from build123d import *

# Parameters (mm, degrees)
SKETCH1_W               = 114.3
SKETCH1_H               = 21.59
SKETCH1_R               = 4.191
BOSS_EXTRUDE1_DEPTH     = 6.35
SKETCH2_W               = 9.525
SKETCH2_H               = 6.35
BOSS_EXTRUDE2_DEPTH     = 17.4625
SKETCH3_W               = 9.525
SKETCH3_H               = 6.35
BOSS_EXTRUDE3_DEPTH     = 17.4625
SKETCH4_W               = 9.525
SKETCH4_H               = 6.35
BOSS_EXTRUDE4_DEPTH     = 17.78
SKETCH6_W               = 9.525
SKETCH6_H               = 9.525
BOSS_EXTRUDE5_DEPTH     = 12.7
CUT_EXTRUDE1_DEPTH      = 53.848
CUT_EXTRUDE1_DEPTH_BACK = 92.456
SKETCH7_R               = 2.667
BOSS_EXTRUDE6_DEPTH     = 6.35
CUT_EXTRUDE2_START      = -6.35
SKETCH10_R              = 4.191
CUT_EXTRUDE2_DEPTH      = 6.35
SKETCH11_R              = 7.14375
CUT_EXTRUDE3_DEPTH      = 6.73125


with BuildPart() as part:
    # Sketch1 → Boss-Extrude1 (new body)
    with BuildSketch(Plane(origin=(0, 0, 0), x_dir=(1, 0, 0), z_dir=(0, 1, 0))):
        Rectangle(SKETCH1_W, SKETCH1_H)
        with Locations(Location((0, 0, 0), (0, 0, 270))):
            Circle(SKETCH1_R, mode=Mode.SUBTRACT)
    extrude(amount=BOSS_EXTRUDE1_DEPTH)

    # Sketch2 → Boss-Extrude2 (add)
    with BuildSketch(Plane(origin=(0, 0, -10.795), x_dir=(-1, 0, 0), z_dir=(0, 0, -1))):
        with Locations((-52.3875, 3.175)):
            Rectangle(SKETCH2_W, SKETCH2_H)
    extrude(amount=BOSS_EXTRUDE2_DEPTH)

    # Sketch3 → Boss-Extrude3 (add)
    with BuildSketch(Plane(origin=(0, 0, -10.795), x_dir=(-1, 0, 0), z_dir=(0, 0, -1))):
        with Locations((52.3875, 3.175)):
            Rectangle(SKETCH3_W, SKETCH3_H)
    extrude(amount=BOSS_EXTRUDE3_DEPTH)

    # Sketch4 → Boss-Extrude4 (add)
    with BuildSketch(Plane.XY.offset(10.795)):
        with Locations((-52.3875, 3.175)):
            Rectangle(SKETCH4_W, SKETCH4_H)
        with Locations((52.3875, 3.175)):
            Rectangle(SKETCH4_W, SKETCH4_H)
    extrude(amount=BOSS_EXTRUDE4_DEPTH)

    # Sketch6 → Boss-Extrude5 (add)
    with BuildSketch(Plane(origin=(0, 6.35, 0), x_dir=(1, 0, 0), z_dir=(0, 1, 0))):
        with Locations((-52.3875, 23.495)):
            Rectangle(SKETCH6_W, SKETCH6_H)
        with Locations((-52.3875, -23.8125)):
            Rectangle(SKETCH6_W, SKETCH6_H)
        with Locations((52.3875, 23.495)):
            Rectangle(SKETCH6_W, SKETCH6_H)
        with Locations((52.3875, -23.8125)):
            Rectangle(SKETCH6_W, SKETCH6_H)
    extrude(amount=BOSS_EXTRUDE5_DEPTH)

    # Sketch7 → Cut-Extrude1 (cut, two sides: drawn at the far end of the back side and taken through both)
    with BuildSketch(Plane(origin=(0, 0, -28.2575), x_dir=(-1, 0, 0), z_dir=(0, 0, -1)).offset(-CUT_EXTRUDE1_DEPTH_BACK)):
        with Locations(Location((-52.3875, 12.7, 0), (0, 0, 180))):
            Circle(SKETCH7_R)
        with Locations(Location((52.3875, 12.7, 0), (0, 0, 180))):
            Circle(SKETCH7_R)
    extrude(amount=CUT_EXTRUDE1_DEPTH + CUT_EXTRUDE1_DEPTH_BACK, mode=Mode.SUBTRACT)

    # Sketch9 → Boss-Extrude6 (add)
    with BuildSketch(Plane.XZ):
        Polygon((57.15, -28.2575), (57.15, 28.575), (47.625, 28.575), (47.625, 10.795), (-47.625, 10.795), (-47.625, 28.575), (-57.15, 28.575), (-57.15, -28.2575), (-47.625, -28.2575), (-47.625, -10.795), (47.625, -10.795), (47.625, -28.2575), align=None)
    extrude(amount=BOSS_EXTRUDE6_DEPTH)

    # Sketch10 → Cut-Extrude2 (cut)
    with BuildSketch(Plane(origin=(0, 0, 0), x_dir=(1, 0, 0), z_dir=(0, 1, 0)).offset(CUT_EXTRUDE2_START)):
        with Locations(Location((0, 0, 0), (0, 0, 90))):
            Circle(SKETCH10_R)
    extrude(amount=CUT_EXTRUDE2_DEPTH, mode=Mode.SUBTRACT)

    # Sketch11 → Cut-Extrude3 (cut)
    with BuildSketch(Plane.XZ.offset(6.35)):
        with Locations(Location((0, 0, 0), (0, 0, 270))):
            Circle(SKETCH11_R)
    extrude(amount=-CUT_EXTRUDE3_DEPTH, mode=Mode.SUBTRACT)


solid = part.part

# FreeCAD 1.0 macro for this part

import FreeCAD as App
import Part
import Sketcher
Q = App.Units.Quantity

doc = App.newDocument("Part")
body = doc.addObject("PartDesign::Body", "Body")

# Sketch on XZ plane
sketch1 = body.newObject("Sketcher::SketchObject", "Sketch")
sketch1.AttachmentSupport = (doc.getObject("XZ_Plane"), [""])
sketch1.MapMode = "FlatFace"
sketch1.addGeometry([
    Part.LineSegment(App.Vector(-57.1, -10.8, 0), App.Vector(-57.1, 10.8, 0)),  # 0
    Part.LineSegment(App.Vector(-57.1, 10.8, 0), App.Vector(57.1, 10.8, 0)),  # 1
    Part.LineSegment(App.Vector(57.1, 10.8, 0), App.Vector(57.1, -10.8, 0)),  # 2
    Part.LineSegment(App.Vector(57.1, -10.8, 0), App.Vector(-57.1, -10.8, 0)),  # 3
    Part.Circle(App.Vector(0, 0, 0), App.Vector(0, 0, 1), 4.2),  # 4
], False)
sketch1.addConstraint([
    Sketcher.Constraint("Coincident", 0, 2, 1, 1),
    Sketcher.Constraint("Coincident", 1, 2, 2, 1),
    Sketcher.Constraint("Coincident", 2, 2, 3, 1),
    Sketcher.Constraint("Coincident", 3, 2, 0, 1),
    Sketcher.Constraint("Vertical", 0),
    Sketcher.Constraint("Horizontal", 1),
    Sketcher.Constraint("Vertical", 2),
    Sketcher.Constraint("Horizontal", 3),
    Sketcher.Constraint("Coincident", 4, 3, -1, 1),
    Sketcher.Constraint("Symmetric", 0, 2, 2, 2, -1, 1),
    Sketcher.Constraint("Diameter", 4, Q("0.33 in")),
    Sketcher.Constraint("DistanceX", 1, 1, 1, 2, Q("4.5 in")),
    Sketcher.Constraint("DistanceY", 0, 1, 0, 2, Q("0.85 in")),
])
pad1 = body.newObject("PartDesign::Pad", "Pad")
pad1.Profile = sketch1
pad1.Length = Q("0.25 in")
pad1.Reversed = True

# Sketch on XY plane
sketch2 = body.newObject("Sketcher::SketchObject", "Sketch001")
sketch2.AttachmentSupport = (doc.getObject("XY_Plane"), [""])
sketch2.MapMode = "FlatFace"
sketch2.AttachmentOffset = App.Placement(App.Vector(0, 0, -0.425 * 25.4), App.Rotation())
sketch2.addGeometry([
    Part.LineSegment(App.Vector(57, 6, 0), App.Vector(57, 0, 0)),
    Part.LineSegment(App.Vector(57, 0, 0), App.Vector(48, 0, 0)),
    Part.LineSegment(App.Vector(48, 0, 0), App.Vector(48, 6, 0)),
    Part.LineSegment(App.Vector(48, 6, 0), App.Vector(57, 6, 0)),
], False)
sketch2.addConstraint([
    Sketcher.Constraint("Coincident", 0, 2, 1, 1),
    Sketcher.Constraint("Coincident", 1, 2, 2, 1),
    Sketcher.Constraint("Coincident", 2, 2, 3, 1),
    Sketcher.Constraint("Coincident", 3, 2, 0, 1),
    Sketcher.Constraint("Vertical", 0),
    Sketcher.Constraint("Horizontal", 1),
    Sketcher.Constraint("Vertical", 2),
    Sketcher.Constraint("Horizontal", 3),
    Sketcher.Constraint("PointOnObject", 0, 2, -1),
    Sketcher.Constraint("DistanceY", 0, 2, 0, 1, Q("0.25 in")),
    Sketcher.Constraint("DistanceX", 1, 2, 1, 1, Q("0.375 in")),
    Sketcher.Constraint("DistanceX", -1, 1, 0, 2, Q("2.25 in")),
])
pad2 = body.newObject("PartDesign::Pad", "Pad001")
pad2.Profile = sketch2
pad2.Length = Q("0.6875 in")
pad2.Reversed = True

# Sketch on XY plane
sketch3 = body.newObject("Sketcher::SketchObject", "Sketch002")
sketch3.AttachmentSupport = (doc.getObject("XY_Plane"), [""])
sketch3.MapMode = "FlatFace"
sketch3.AttachmentOffset = App.Placement(App.Vector(0, 0, -0.425 * 25.4), App.Rotation())
sketch3.addGeometry([
    Part.LineSegment(App.Vector(-48, 6, 0), App.Vector(-48, 0, 0)),
    Part.LineSegment(App.Vector(-48, 0, 0), App.Vector(-57, 0, 0)),
    Part.LineSegment(App.Vector(-57, 0, 0), App.Vector(-57, 6, 0)),
    Part.LineSegment(App.Vector(-57, 6, 0), App.Vector(-48, 6, 0)),
], False)
sketch3.addConstraint([
    Sketcher.Constraint("Coincident", 0, 2, 1, 1),
    Sketcher.Constraint("Coincident", 1, 2, 2, 1),
    Sketcher.Constraint("Coincident", 2, 2, 3, 1),
    Sketcher.Constraint("Coincident", 3, 2, 0, 1),
    Sketcher.Constraint("Vertical", 0),
    Sketcher.Constraint("Horizontal", 1),
    Sketcher.Constraint("Vertical", 2),
    Sketcher.Constraint("Horizontal", 3),
    Sketcher.Constraint("PointOnObject", 0, 2, -1),
    Sketcher.Constraint("DistanceY", 0, 2, 0, 1, Q("0.25 in")),
    Sketcher.Constraint("DistanceX", 1, 2, 1, 1, Q("0.375 in")),
    Sketcher.Constraint("DistanceX", 1, 2, -1, 1, Q("2.25 in")),
])
pad3 = body.newObject("PartDesign::Pad", "Pad002")
pad3.Profile = sketch3
pad3.Length = Q("0.6875 in")
pad3.Reversed = True

# Sketch on XY plane
sketch4 = body.newObject("Sketcher::SketchObject", "Sketch003")
sketch4.AttachmentSupport = (doc.getObject("XY_Plane"), [""])
sketch4.MapMode = "FlatFace"
sketch4.AttachmentOffset = App.Placement(App.Vector(0, 0, 0.425 * 25.4), App.Rotation())
sketch4.addGeometry([
    Part.LineSegment(App.Vector(-57, 6, 0), App.Vector(-57, 0, 0)),  # 0
    Part.LineSegment(App.Vector(-57, 0, 0), App.Vector(-48, 0, 0)),  # 1
    Part.LineSegment(App.Vector(-48, 0, 0), App.Vector(-48, 6, 0)),  # 2
    Part.LineSegment(App.Vector(-48, 6, 0), App.Vector(-57, 6, 0)),  # 3
    Part.LineSegment(App.Vector(48, 6, 0), App.Vector(48, 0, 0)),  # 4
    Part.LineSegment(App.Vector(48, 0, 0), App.Vector(57, 0, 0)),  # 5
    Part.LineSegment(App.Vector(57, 0, 0), App.Vector(57, 6, 0)),  # 6
    Part.LineSegment(App.Vector(57, 6, 0), App.Vector(48, 6, 0)),  # 7
], False)
sketch4.addConstraint([
    Sketcher.Constraint("Coincident", 0, 2, 1, 1),
    Sketcher.Constraint("Coincident", 1, 2, 2, 1),
    Sketcher.Constraint("Coincident", 2, 2, 3, 1),
    Sketcher.Constraint("Coincident", 3, 2, 0, 1),
    Sketcher.Constraint("Coincident", 4, 2, 5, 1),
    Sketcher.Constraint("Coincident", 5, 2, 6, 1),
    Sketcher.Constraint("Coincident", 6, 2, 7, 1),
    Sketcher.Constraint("Coincident", 7, 2, 4, 1),
    Sketcher.Constraint("Vertical", 0),
    Sketcher.Constraint("Horizontal", 1),
    Sketcher.Constraint("Vertical", 2),
    Sketcher.Constraint("Horizontal", 3),
    Sketcher.Constraint("Vertical", 4),
    Sketcher.Constraint("Horizontal", 5),
    Sketcher.Constraint("Vertical", 6),
    Sketcher.Constraint("Horizontal", 7),
    Sketcher.Constraint("Symmetric", 1, 2, 4, 2, -1, 1),
    Sketcher.Constraint("Symmetric", 0, 2, 5, 2, -2),
    Sketcher.Constraint("Horizontal", 3, 2, 6, 2),
    Sketcher.Constraint("DistanceY", 0, 2, 0, 1, Q("0.25 in")),
    Sketcher.Constraint("DistanceX", 0, 2, 5, 2, Q("4.5 in")),
    Sketcher.Constraint("DistanceX", 1, 1, 1, 2, Q("0.375 in")),
])
pad4 = body.newObject("PartDesign::Pad", "Pad003")
pad4.Profile = sketch4
pad4.Length = Q("0.7 in")

# Sketch on XZ plane
sketch5 = body.newObject("Sketcher::SketchObject", "Sketch004")
sketch5.AttachmentSupport = (doc.getObject("XZ_Plane"), [""])
sketch5.MapMode = "FlatFace"
sketch5.AttachmentOffset = App.Placement(App.Vector(0, 0, -0.25 * 25.4), App.Rotation())
sketch5.addGeometry([
    Part.LineSegment(App.Vector(-57, -28, 0), App.Vector(-57, -19, 0)),  # 0
    Part.LineSegment(App.Vector(-57, -19, 0), App.Vector(-48, -19, 0)),  # 1
    Part.LineSegment(App.Vector(-48, -19, 0), App.Vector(-48, -28, 0)),  # 2
    Part.LineSegment(App.Vector(-48, -28, 0), App.Vector(-57, -28, 0)),  # 3
    Part.LineSegment(App.Vector(-57, 19, 0), App.Vector(-57, 29, 0)),  # 4
    Part.LineSegment(App.Vector(-57, 29, 0), App.Vector(-48, 29, 0)),  # 5
    Part.LineSegment(App.Vector(-48, 29, 0), App.Vector(-48, 19, 0)),  # 6
    Part.LineSegment(App.Vector(-48, 19, 0), App.Vector(-57, 19, 0)),  # 7
    Part.LineSegment(App.Vector(48, -28, 0), App.Vector(48, -19, 0)),  # 8
    Part.LineSegment(App.Vector(48, -19, 0), App.Vector(57, -19, 0)),  # 9
    Part.LineSegment(App.Vector(57, -19, 0), App.Vector(57, -28, 0)),  # 10
    Part.LineSegment(App.Vector(57, -28, 0), App.Vector(48, -28, 0)),  # 11
    Part.LineSegment(App.Vector(48, 19, 0), App.Vector(48, 29, 0)),  # 12
    Part.LineSegment(App.Vector(48, 29, 0), App.Vector(57, 29, 0)),  # 13
    Part.LineSegment(App.Vector(57, 29, 0), App.Vector(57, 19, 0)),  # 14
    Part.LineSegment(App.Vector(57, 19, 0), App.Vector(48, 19, 0)),  # 15
], False)
sketch5.addConstraint([
    Sketcher.Constraint("Coincident", 0, 2, 1, 1),
    Sketcher.Constraint("Coincident", 1, 2, 2, 1),
    Sketcher.Constraint("Coincident", 2, 2, 3, 1),
    Sketcher.Constraint("Coincident", 3, 2, 0, 1),
    Sketcher.Constraint("Coincident", 4, 2, 5, 1),
    Sketcher.Constraint("Coincident", 5, 2, 6, 1),
    Sketcher.Constraint("Coincident", 6, 2, 7, 1),
    Sketcher.Constraint("Coincident", 7, 2, 4, 1),
    Sketcher.Constraint("Coincident", 8, 2, 9, 1),
    Sketcher.Constraint("Coincident", 9, 2, 10, 1),
    Sketcher.Constraint("Coincident", 10, 2, 11, 1),
    Sketcher.Constraint("Coincident", 11, 2, 8, 1),
    Sketcher.Constraint("Coincident", 12, 2, 13, 1),
    Sketcher.Constraint("Coincident", 13, 2, 14, 1),
    Sketcher.Constraint("Coincident", 14, 2, 15, 1),
    Sketcher.Constraint("Coincident", 15, 2, 12, 1),
    Sketcher.Constraint("Vertical", 0),
    Sketcher.Constraint("Horizontal", 1),
    Sketcher.Constraint("Vertical", 2),
    Sketcher.Constraint("Horizontal", 3),
    Sketcher.Constraint("Vertical", 4),
    Sketcher.Constraint("Horizontal", 5),
    Sketcher.Constraint("Vertical", 6),
    Sketcher.Constraint("Horizontal", 7),
    Sketcher.Constraint("Vertical", 8),
    Sketcher.Constraint("Horizontal", 9),
    Sketcher.Constraint("Vertical", 10),
    Sketcher.Constraint("Horizontal", 11),
    Sketcher.Constraint("Vertical", 12),
    Sketcher.Constraint("Horizontal", 13),
    Sketcher.Constraint("Vertical", 14),
    Sketcher.Constraint("Horizontal", 15),
    Sketcher.Constraint("Symmetric", 1, 2, 8, 2, -2),
    Sketcher.Constraint("Symmetric", 3, 2, 10, 2, -2),
    Sketcher.Constraint("Symmetric", 5, 2, 12, 2, -2),
    Sketcher.Constraint("Symmetric", 7, 2, 14, 2, -2),
    Sketcher.Constraint("Vertical", 3, 2, 4, 2),
    Sketcher.Constraint("Vertical", 2, 2, 5, 2),
    Sketcher.Constraint("Equal", 15, 0),
    Sketcher.Constraint("Equal", 2, 4),
    Sketcher.Constraint("DistanceX", 0, 2, 9, 2, Q("4.5 in")),
    Sketcher.Constraint("DistanceX", 1, 1, 1, 2, Q("0.375 in")),
    Sketcher.Constraint("DistanceY", -1, 1, 6, 2, Q("0.75 in")),
    Sketcher.Constraint("DistanceY", 0, 2, -1, 1, Q("0.7375 in")),
])
pad5 = body.newObject("PartDesign::Pad", "Pad004")
pad5.Profile = sketch5
pad5.Length = Q("0.5 in")
pad5.Reversed = True

# Sketch on XY plane
sketch6 = body.newObject("Sketcher::SketchObject", "Sketch005")
sketch6.AttachmentSupport = (doc.getObject("XY_Plane"), [""])
sketch6.MapMode = "FlatFace"
sketch6.AttachmentOffset = App.Placement(App.Vector(0, 0, -1.1125 * 25.4), App.Rotation())
sketch6.addGeometry([
    Part.Circle(App.Vector(52.4, 12.7, 0), App.Vector(0, 0, 1), 2.7),
    Part.Circle(App.Vector(-52.4, 12.7, 0), App.Vector(0, 0, 1), 2.7),
], False)
sketch6.addConstraint([
    Sketcher.Constraint("Equal", 0, 1),
    Sketcher.Constraint("Symmetric", 0, 3, 1, 3, -2),
    Sketcher.Constraint("Diameter", 0, Q("0.21 in")),
    Sketcher.Constraint("DistanceY", -1, 1, 0, 3, Q("0.5 in")),
    Sketcher.Constraint("DistanceX", -1, 1, 0, 3, Q("2.0625 in")),
])
pocket1 = body.newObject("PartDesign::Pocket", "Pocket")
pocket1.Profile = sketch6
pocket1.Type = "ThroughAll"
pocket1.Midplane = True

# Sketch on XZ plane
sketch7 = body.newObject("Sketcher::SketchObject", "Sketch006")
sketch7.AttachmentSupport = (doc.getObject("XZ_Plane"), [""])
sketch7.MapMode = "FlatFace"
sketch7.addGeometry([
    Part.LineSegment(App.Vector(57, -28, 0), App.Vector(57, 29, 0)),  # 0
    Part.LineSegment(App.Vector(57, 29, 0), App.Vector(48, 29, 0)),  # 1
    Part.LineSegment(App.Vector(48, 29, 0), App.Vector(48, 11, 0)),  # 2
    Part.LineSegment(App.Vector(48, 11, 0), App.Vector(-48, 11, 0)),  # 3
    Part.LineSegment(App.Vector(-48, 11, 0), App.Vector(-48, 29, 0)),  # 4
    Part.LineSegment(App.Vector(-48, 29, 0), App.Vector(-57, 29, 0)),  # 5
    Part.LineSegment(App.Vector(-57, 29, 0), App.Vector(-57, -28, 0)),  # 6
    Part.LineSegment(App.Vector(-57, -28, 0), App.Vector(-48, -28, 0)),  # 7
    Part.LineSegment(App.Vector(-48, -28, 0), App.Vector(-48, -11, 0)),  # 8
    Part.LineSegment(App.Vector(-48, -11, 0), App.Vector(48, -11, 0)),  # 9
    Part.LineSegment(App.Vector(48, -11, 0), App.Vector(48, -28, 0)),  # 10
    Part.LineSegment(App.Vector(48, -28, 0), App.Vector(57, -28, 0)),  # 11
], False)
sketch7.addConstraint([
    Sketcher.Constraint("Coincident", 0, 2, 1, 1),
    Sketcher.Constraint("Coincident", 1, 2, 2, 1),
    Sketcher.Constraint("Coincident", 2, 2, 3, 1),
    Sketcher.Constraint("Coincident", 3, 2, 4, 1),
    Sketcher.Constraint("Coincident", 4, 2, 5, 1),
    Sketcher.Constraint("Coincident", 5, 2, 6, 1),
    Sketcher.Constraint("Coincident", 6, 2, 7, 1),
    Sketcher.Constraint("Coincident", 7, 2, 8, 1),
    Sketcher.Constraint("Coincident", 8, 2, 9, 1),
    Sketcher.Constraint("Coincident", 9, 2, 10, 1),
    Sketcher.Constraint("Coincident", 10, 2, 11, 1),
    Sketcher.Constraint("Coincident", 11, 2, 0, 1),
    Sketcher.Constraint("Vertical", 0),
    Sketcher.Constraint("Horizontal", 1),
    Sketcher.Constraint("Vertical", 2),
    Sketcher.Constraint("Horizontal", 3),
    Sketcher.Constraint("Vertical", 4),
    Sketcher.Constraint("Horizontal", 5),
    Sketcher.Constraint("Vertical", 6),
    Sketcher.Constraint("Horizontal", 7),
    Sketcher.Constraint("Vertical", 8),
    Sketcher.Constraint("Horizontal", 9),
    Sketcher.Constraint("Vertical", 10),
    Sketcher.Constraint("Horizontal", 11),
    Sketcher.Constraint("Symmetric", 2, 2, 8, 2, -1, 1),
    Sketcher.Constraint("Symmetric", 1, 2, 4, 2, -2),
    Sketcher.Constraint("Symmetric", 7, 2, 10, 2, -2),
    Sketcher.Constraint("Equal", 1, 5),
    Sketcher.Constraint("DistanceY", 2, 2, 2, 1, Q("0.7 in")),
    Sketcher.Constraint("DistanceX", 3, 2, 3, 1, Q("3.75 in")),
    Sketcher.Constraint("DistanceX", 5, 2, 0, 2, Q("4.5 in")),
    Sketcher.Constraint("DistanceY", 8, 1, 8, 2, Q("0.6875 in")),
    Sketcher.Constraint("DistanceY", 8, 2, 3, 2, Q("0.85 in")),
])
pad6 = body.newObject("PartDesign::Pad", "Pad005")
pad6.Profile = sketch7
pad6.Length = Q("0.25 in")

# Sketch on XZ plane
sketch8 = body.newObject("Sketcher::SketchObject", "Sketch007")
sketch8.AttachmentSupport = (doc.getObject("XZ_Plane"), [""])
sketch8.MapMode = "FlatFace"
sketch8.AttachmentOffset = App.Placement(App.Vector(0, 0, 0.25 * 25.4), App.Rotation())
sketch8.addGeometry(Part.Circle(App.Vector(0, 0, 0), App.Vector(0, 0, 1), 4.2), False)
sketch8.addConstraint([
    Sketcher.Constraint("Coincident", 0, 3, -1, 1),
    Sketcher.Constraint("Diameter", 0, Q("0.33 in")),
])
pocket2 = body.newObject("PartDesign::Pocket", "Pocket001")
pocket2.Profile = sketch8
pocket2.Length = Q("0.25 in")

# Sketch on XZ plane
sketch9 = body.newObject("Sketcher::SketchObject", "Sketch008")
sketch9.AttachmentSupport = (doc.getObject("XZ_Plane"), [""])
sketch9.MapMode = "FlatFace"
sketch9.AttachmentOffset = App.Placement(App.Vector(0, 0, 0.25 * 25.4), App.Rotation())
sketch9.addGeometry(Part.Circle(App.Vector(0, 0, 0), App.Vector(0, 0, 1), 7), False)
sketch9.addConstraint([
    Sketcher.Constraint("Coincident", 0, 3, -1, 1),
    Sketcher.Constraint("Diameter", 0, Q("0.5625 in")),
])
pocket3 = body.newObject("PartDesign::Pocket", "Pocket002")
pocket3.Profile = sketch9
pocket3.Length = 6.73125

doc.recompute()
